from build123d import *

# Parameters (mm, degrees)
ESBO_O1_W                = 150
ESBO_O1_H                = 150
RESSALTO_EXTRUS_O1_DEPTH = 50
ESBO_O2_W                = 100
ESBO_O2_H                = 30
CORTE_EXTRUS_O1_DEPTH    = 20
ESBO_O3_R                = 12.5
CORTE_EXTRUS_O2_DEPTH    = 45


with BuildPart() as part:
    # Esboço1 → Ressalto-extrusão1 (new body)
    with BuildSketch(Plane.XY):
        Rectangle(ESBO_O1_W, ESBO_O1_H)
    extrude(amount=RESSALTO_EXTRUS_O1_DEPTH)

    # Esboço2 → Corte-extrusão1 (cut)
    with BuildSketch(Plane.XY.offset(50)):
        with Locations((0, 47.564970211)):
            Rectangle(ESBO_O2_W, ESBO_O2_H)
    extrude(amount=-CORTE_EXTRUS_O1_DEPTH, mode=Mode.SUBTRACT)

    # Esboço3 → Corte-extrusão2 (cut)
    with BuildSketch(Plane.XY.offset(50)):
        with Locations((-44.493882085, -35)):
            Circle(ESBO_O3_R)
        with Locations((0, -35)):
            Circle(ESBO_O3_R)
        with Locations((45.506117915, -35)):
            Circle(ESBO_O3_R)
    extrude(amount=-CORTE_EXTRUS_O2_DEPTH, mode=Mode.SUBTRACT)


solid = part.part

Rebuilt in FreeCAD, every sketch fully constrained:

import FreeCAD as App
import Part
import Sketcher
Q = App.Units.Quantity

doc = App.newDocument("Part")
body = doc.addObject("PartDesign::Body", "Body")

sketch1 = doc.addObject("Sketcher::SketchObject", "Sketch")
body.addObject(sketch1)
sketch1.AttachmentSupport = (doc.XY_Plane, [""])
sketch1.MapMode = "FlatFace"
sketch1.addGeometry([
    Part.LineSegment(App.Vector(-75, 75, 0), App.Vector(-75, -75, 0)),
    Part.LineSegment(App.Vector(-75, -75, 0), App.Vector(75, -75, 0)),
    Part.LineSegment(App.Vector(75, -75, 0), App.Vector(75, 75, 0)),
    Part.LineSegment(App.Vector(75, 75, 0), App.Vector(-75, 75, 0)),
], False)
sketch1.addConstraint([
    Sketcher.Constraint("Coincident", 0, 2, 1, 1),
    Sketcher.Constraint("Coincident", 1, 2, 2, 1),
    Sketcher.Constraint("Coincident", 2, 2, 3, 1),
    Sketcher.Constraint("Coincident", 3, 2, 0, 1),
    Sketcher.Constraint("Vertical", 0),
    Sketcher.Constraint("Horizontal", 1),
    Sketcher.Constraint("Vertical", 2),
    Sketcher.Constraint("Horizontal", 3),
    Sketcher.Constraint("Symmetric", 0, 2, 2, 2, -1, 1),
    Sketcher.Constraint("Equal", 3, 0),
    Sketcher.Constraint("DistanceX", 1, 1, 1, 2, Q("150 mm")),
])
pad1 = doc.addObject("PartDesign::Pad", "Pad")
body.addObject(pad1)
pad1.Profile = sketch1
pad1.Length = 50

sketch2 = doc.addObject("Sketcher::SketchObject", "Sketch001")
body.addObject(sketch2)
sketch2.AttachmentSupport = (doc.XY_Plane, [""])
sketch2.MapMode = "FlatFace"
sketch2.AttachmentOffset = App.Placement(App.Vector(0, 0, 50), App.Rotation())
sketch2.addGeometry([
    Part.LineSegment(App.Vector(-50, 63, 0), App.Vector(-50, 33, 0)),
    Part.LineSegment(App.Vector(-50, 33, 0), App.Vector(50, 33, 0)),
    Part.LineSegment(App.Vector(50, 33, 0), App.Vector(50, 63, 0)),
    Part.LineSegment(App.Vector(50, 63, 0), App.Vector(-50, 63, 0)),
], False)
sketch2.addConstraint([
    Sketcher.Constraint("Coincident", 0, 2, 1, 1),
    Sketcher.Constraint("Coincident", 1, 2, 2, 1),
    Sketcher.Constraint("Coincident", 2, 2, 3, 1),
    Sketcher.Constraint("Coincident", 3, 2, 0, 1),
    Sketcher.Constraint("Vertical", 0),
    Sketcher.Constraint("Horizontal", 1),
    Sketcher.Constraint("Vertical", 2),
    Sketcher.Constraint("Horizontal", 3),
    Sketcher.Constraint("DistanceX", 1, 1, 1, 2, Q("100 mm")),
    Sketcher.Constraint("DistanceY", 0, 2, 0, 1, Q("30 mm")),
    Sketcher.Constraint("DistanceX", 0, 2, -1, 1, Q("50 mm")),
    Sketcher.Constraint("DistanceY", -1, 1, 0, 2, Q("32.56497 mm")),
])
pocket1 = doc.addObject("PartDesign::Pocket", "Pocket")
body.addObject(pocket1)
pocket1.Profile = sketch2
pocket1.Length = 20

sketch3 = doc.addObject("Sketcher::SketchObject", "Sketch002")
body.addObject(sketch3)
sketch3.AttachmentSupport = (doc.XY_Plane, [""])
sketch3.MapMode = "FlatFace"
sketch3.AttachmentOffset = App.Placement(App.Vector(0, 0, 50), App.Rotation())
sketch3.addGeometry([
    Part.Circle(App.Vector(-44, -35, 0), App.Vector(0, 0, 1), 12),
    Part.Circle(App.Vector(0, -35, 0), App.Vector(0, 0, 1), 12),
    Part.Circle(App.Vector(46, -35, 0), App.Vector(0, 0, 1), 12),
], False)
sketch3.addConstraint([
    Sketcher.Constraint("Equal", 0, 1),
    Sketcher.Constraint("Equal", 1, 2),
    Sketcher.Constraint("PointOnObject", 1, 3, -2),
    Sketcher.Constraint("Horizontal", 0, 3, 1, 3),
    Sketcher.Constraint("Horizontal", 1, 3, 2, 3),
    Sketcher.Constraint("Diameter", 0, Q("25 mm")),
    Sketcher.Constraint("DistanceY", 0, 3, -1, 1, Q("35 mm")),
    Sketcher.Constraint("DistanceX", 0, 3, 2, 3, Q("90 mm")),
    Sketcher.Constraint("DistanceX", 0, 3, -1, 1, Q("44.493882 mm")),
])
pocket2 = doc.addObject("PartDesign::Pocket", "Pocket001")
body.addObject(pocket2)
pocket2.Profile = sketch3
pocket2.Length = 45

doc.recompute()
